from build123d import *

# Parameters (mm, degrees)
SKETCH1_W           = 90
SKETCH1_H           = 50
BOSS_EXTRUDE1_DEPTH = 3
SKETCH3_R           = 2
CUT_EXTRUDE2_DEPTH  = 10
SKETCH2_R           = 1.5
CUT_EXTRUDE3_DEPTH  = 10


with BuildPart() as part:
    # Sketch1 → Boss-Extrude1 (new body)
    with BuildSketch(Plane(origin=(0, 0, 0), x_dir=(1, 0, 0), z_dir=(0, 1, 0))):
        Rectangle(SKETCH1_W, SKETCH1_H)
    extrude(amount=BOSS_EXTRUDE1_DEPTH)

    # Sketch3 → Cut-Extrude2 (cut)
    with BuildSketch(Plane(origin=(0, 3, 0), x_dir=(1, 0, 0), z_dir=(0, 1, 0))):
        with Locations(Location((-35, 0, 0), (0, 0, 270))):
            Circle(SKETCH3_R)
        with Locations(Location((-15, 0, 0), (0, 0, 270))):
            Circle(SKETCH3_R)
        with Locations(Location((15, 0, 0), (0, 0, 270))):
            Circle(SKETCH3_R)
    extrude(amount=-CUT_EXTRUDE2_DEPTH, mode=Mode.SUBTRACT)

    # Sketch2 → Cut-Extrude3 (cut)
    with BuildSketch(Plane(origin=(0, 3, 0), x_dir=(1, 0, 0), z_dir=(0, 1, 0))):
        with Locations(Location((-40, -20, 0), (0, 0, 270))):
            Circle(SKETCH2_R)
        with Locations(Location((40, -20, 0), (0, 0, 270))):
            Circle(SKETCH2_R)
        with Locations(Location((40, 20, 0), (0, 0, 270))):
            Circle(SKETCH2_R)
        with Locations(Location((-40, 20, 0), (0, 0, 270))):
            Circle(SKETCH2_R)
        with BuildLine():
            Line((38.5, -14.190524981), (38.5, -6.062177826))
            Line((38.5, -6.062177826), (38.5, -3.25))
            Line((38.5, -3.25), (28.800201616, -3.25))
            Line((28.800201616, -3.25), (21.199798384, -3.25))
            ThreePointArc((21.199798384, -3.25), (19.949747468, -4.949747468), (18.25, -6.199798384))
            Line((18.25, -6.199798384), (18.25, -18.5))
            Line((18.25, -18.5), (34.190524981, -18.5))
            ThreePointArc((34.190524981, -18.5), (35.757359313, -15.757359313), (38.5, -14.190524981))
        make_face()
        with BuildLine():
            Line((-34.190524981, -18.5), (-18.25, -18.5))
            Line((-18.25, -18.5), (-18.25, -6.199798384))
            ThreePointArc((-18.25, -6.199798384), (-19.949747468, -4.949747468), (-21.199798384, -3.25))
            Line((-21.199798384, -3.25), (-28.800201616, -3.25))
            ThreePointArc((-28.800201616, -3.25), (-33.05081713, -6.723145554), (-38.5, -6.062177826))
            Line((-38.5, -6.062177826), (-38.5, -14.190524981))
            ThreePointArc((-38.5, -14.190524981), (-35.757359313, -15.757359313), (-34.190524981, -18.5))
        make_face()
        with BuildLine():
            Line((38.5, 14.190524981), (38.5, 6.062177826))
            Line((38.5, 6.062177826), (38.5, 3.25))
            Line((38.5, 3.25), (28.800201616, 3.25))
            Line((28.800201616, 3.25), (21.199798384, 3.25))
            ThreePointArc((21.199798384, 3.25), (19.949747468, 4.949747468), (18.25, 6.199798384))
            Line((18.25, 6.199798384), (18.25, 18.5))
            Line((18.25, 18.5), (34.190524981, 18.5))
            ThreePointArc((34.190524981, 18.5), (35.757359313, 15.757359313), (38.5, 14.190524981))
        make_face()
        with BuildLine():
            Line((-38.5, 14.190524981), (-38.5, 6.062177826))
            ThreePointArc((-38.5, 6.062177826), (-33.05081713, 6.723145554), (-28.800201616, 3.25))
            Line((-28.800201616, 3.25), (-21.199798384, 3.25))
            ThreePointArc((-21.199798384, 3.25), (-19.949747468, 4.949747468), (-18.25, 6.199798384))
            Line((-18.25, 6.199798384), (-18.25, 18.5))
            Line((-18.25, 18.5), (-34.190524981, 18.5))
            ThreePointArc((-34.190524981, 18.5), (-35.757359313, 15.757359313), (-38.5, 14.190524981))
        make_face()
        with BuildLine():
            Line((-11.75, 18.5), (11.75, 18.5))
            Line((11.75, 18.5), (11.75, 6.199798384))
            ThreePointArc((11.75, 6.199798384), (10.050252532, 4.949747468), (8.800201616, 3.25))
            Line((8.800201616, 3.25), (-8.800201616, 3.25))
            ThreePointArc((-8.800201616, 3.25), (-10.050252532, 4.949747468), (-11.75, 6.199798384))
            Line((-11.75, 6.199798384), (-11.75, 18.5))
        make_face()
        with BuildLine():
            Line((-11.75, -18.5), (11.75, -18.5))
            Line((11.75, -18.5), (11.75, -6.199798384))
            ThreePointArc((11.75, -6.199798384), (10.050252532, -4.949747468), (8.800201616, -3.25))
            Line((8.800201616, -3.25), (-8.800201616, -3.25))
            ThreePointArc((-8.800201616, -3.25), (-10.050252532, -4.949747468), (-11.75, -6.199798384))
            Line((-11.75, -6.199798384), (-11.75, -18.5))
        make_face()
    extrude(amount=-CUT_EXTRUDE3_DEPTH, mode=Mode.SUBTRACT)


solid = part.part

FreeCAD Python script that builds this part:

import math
import FreeCAD as App
import Part
import Sketcher
Q = App.Units.Quantity


def add_polygon(sketch, points):
    """Adds a closed chain of lines whose ends are joined by coincident constraints."""
    first, n = sketch.GeometryCount, len(points)
    for a, b in zip(points, points[1:] + points[:1]):
        sketch.addGeometry(Part.LineSegment(App.Vector(*a, 0), App.Vector(*b, 0)), False)
    for i in range(n):
        sketch.addConstraint(Sketcher.Constraint("Coincident", first + i, 2, first + (i + 1) % n, 1))

doc = App.newDocument("Part")
params = doc.addObject("Spreadsheet::Sheet", "Params")
for row, (alias, value) in enumerate([
    ("sketch1_width", "90 mm"),
    ("sketch1_height", "50 mm"),
    ("pad1_length", "3 mm"),
    ("sketch2_diameter", "4 mm"),
    ("pocket1_length", "10 mm"),
    ("sketch3_diameter", "3 mm"),
    ("sketch3_radius", "7 mm"),
    ("sketch3_radius2", "6 mm"),
    ("sketch3_width", "23.5 mm"),
    ("pocket2_length", "10 mm"),
], start=1):
    params.set(f"A{row}", alias)
    params.set(f"B{row}", "=" + value)
    params.setAlias(f"B{row}", alias)

body = doc.addObject("PartDesign::Body", "Body")

sketch1 = body.newObject("Sketcher::SketchObject", "Sketch")
sketch1.AttachmentSupport = (doc.getObject("XZ_Plane"), [""])
sketch1.MapMode = "FlatFace"
add_polygon(sketch1, [(-45, -25), (-45, 25), (45, 25), (45, -25)])
sketch1.addConstraint([
    Sketcher.Constraint("Vertical", 0),
    Sketcher.Constraint("Horizontal", 1),
    Sketcher.Constraint("Vertical", 2),
    Sketcher.Constraint("Horizontal", 3),
    Sketcher.Constraint("Symmetric", 0, 2, 2, 2, -1, 1),
    Sketcher.Constraint("DistanceX", 1, 1, 1, 2, Q("90 mm")),
    Sketcher.Constraint("DistanceY", 0, 1, 0, 2, Q("50 mm")),
])
sketch1.setExpression("Constraints[9]", "Params.sketch1_width")
sketch1.setExpression("Constraints[10]", "Params.sketch1_height")
pad1 = body.newObject("PartDesign::Pad", "Pad")
pad1.Profile = sketch1
pad1.setExpression("Length", "Params.pad1_length")
pad1.Reversed = True

sketch2 = body.newObject("Sketcher::SketchObject", "Sketch001")
sketch2.AttachmentSupport = (doc.getObject("XZ_Plane"), [""])
sketch2.MapMode = "FlatFace"
sketch2.AttachmentOffset = App.Placement(App.Vector(0, 0, -3), App.Rotation())
sketch2.addGeometry([
    Part.Circle(App.Vector(-35, 0, 0), App.Vector(0, 0, 1), 2),
    Part.Circle(App.Vector(-15, 0, 0), App.Vector(0, 0, 1), 2),
    Part.Circle(App.Vector(15, 0, 0), App.Vector(0, 0, 1), 2),
], False)
sketch2.addConstraint([
    Sketcher.Constraint("Equal", 0, 1),
    Sketcher.Constraint("Equal", 1, 2),
    Sketcher.Constraint("Symmetric", 1, 3, 2, 3, -1, 1),
    Sketcher.Constraint("PointOnObject", 0, 3, -1),
    Sketcher.Constraint("PointOnObject", 1, 3, -1),
    Sketcher.Constraint("Diameter", 0, Q("4 mm")),
    Sketcher.Constraint("DistanceX", 0, 3, -1, 1, Q("35 mm")),
    Sketcher.Constraint("DistanceX", 1, 3, -1, 1, Q("15 mm")),
])
sketch2.setExpression("Constraints[5]", "Params.sketch2_diameter")
pocket1 = body.newObject("PartDesign::Pocket", "Pocket")
pocket1.Profile = sketch2
pocket1.setExpression("Length", "Params.pocket1_length")
pocket1.Reversed = True

sketch3 = body.newObject("Sketcher::SketchObject", "Sketch002")
sketch3.AttachmentSupport = (doc.getObject("XZ_Plane"), [""])
sketch3.MapMode = "FlatFace"
sketch3.AttachmentOffset = App.Placement(App.Vector(0, 0, -3), App.Rotation())
sketch3.addGeometry([
    Part.Circle(App.Vector(-40, 20, 0), App.Vector(0, 0, 1), 1.5),
    Part.Circle(App.Vector(40, 20, 0), App.Vector(0, 0, 1), 1.5),
    Part.Circle(App.Vector(40, -20, 0), App.Vector(0, 0, 1), 1.5),
    Part.Circle(App.Vector(-40, -20, 0), App.Vector(0, 0, 1), 1.5),
    Part.LineSegment(App.Vector(38.5, 14.190525, 0), App.Vector(38.5, 3.25, 0)),
    Part.LineSegment(App.Vector(38.5, 3.25, 0), App.Vector(21.199798, 3.25, 0)),
    Part.ArcOfCircle(Part.Circle(App.Vector(15, 0, 0), App.Vector(0, 0, 1), 7), math.radians(27.664005), math.radians(62.335995)),
    Part.LineSegment(App.Vector(18.25, 6.199798, 0), App.Vector(18.25, 18.5, 0)),
    Part.LineSegment(App.Vector(18.25, 18.5, 0), App.Vector(34.190525, 18.5, 0)),
    Part.ArcOfCircle(Part.Circle(App.Vector(40, 20, 0), App.Vector(0, 0, 1), 6), math.radians(-165.522488), math.radians(-104.477512)),
    Part.LineSegment(App.Vector(-34.190525, 18.5, 0), App.Vector(-18.25, 18.5, 0)),
    Part.LineSegment(App.Vector(-18.25, 18.5, 0), App.Vector(-18.25, 6.199798, 0)),
    Part.ArcOfCircle(Part.Circle(App.Vector(-15, 0, 0), App.Vector(0, 0, 1), 7), math.radians(117.664005), math.radians(152.335995)),
    Part.LineSegment(App.Vector(-21.199798, 3.25, 0), App.Vector(-28.800202, 3.25, 0)),
    Part.ArcOfCircle(Part.Circle(App.Vector(-35, 0, 0), App.Vector(0, 0, 1), 7), math.radians(27.664004), math.radians(120)),
    Part.LineSegment(App.Vector(-38.5, 6.062178, 0), App.Vector(-38.5, 14.190525, 0)),
    Part.ArcOfCircle(Part.Circle(App.Vector(-40, 20, 0), App.Vector(0, 0, 1), 6), math.radians(-75.522488), math.radians(-14.477512)),
    Part.LineSegment(App.Vector(38.5, -3.25, 0), App.Vector(38.5, -14.190525, 0)),
    Part.ArcOfCircle(Part.Circle(App.Vector(40, -20, 0), App.Vector(0, 0, 1), 6), math.radians(104.477512), math.radians(165.522488)),
    Part.LineSegment(App.Vector(34.190525, -18.5, 0), App.Vector(18.25, -18.5, 0)),
    Part.LineSegment(App.Vector(18.25, -18.5, 0), App.Vector(18.25, -6.199798, 0)),
    Part.ArcOfCircle(Part.Circle(App.Vector(15, 0, 0), App.Vector(0, 0, 1), 7), math.radians(-62.335995), math.radians(-27.664005)),
    Part.LineSegment(App.Vector(21.199798, -3.25, 0), App.Vector(38.5, -3.25, 0)),
    Part.LineSegment(App.Vector(-38.5, -14.190525, 0), App.Vector(-38.5, -6.062178, 0)),
    Part.ArcOfCircle(Part.Circle(App.Vector(-35, 0, 0), App.Vector(0, 0, 1), 7), math.radians(-120), math.radians(-27.664004)),
    Part.LineSegment(App.Vector(-28.800202, -3.25, 0), App.Vector(-21.199798, -3.25, 0)),
    Part.ArcOfCircle(Part.Circle(App.Vector(-15, 0, 0), App.Vector(0, 0, 1), 7), math.radians(-152.335995), math.radians(-117.664005)),
    Part.LineSegment(App.Vector(-18.25, -6.199798, 0), App.Vector(-18.25, -18.5, 0)),
    Part.LineSegment(App.Vector(-18.25, -18.5, 0), App.Vector(-34.190525, -18.5, 0)),
    Part.ArcOfCircle(Part.Circle(App.Vector(-40, -20, 0), App.Vector(0, 0, 1), 6), math.radians(14.477512), math.radians(75.522488)),
    Part.LineSegment(App.Vector(11.75, -18.5, 0), App.Vector(-11.75, -18.5, 0)),
    Part.LineSegment(App.Vector(-11.75, -18.5, 0), App.Vector(-11.75, -6.199798, 0)),
    Part.ArcOfCircle(Part.Circle(App.Vector(-15, 0, 0), App.Vector(0, 0, 1), 7), math.radians(-62.335995), math.radians(-27.664005)),
    Part.LineSegment(App.Vector(-8.800202, -3.25, 0), App.Vector(8.800202, -3.25, 0)),
    Part.ArcOfCircle(Part.Circle(App.Vector(15, 0, 0), App.Vector(0, 0, 1), 7), math.radians(-152.335995), math.radians(-117.664005)),
    Part.LineSegment(App.Vector(11.75, -6.199798, 0), App.Vector(11.75, -18.5, 0)),
    Part.LineSegment(App.Vector(-11.75, 18.5, 0), App.Vector(11.75, 18.5, 0)),
    Part.LineSegment(App.Vector(11.75, 18.5, 0), App.Vector(11.75, 6.199798, 0)),
    Part.ArcOfCircle(Part.Circle(App.Vector(15, 0, 0), App.Vector(0, 0, 1), 7), math.radians(117.664005), math.radians(152.335995)),
    Part.LineSegment(App.Vector(8.800202, 3.25, 0), App.Vector(-8.800202, 3.25, 0)),
    Part.ArcOfCircle(Part.Circle(App.Vector(-15, 0, 0), App.Vector(0, 0, 1), 7), math.radians(27.664005), math.radians(62.335995)),
    Part.LineSegment(App.Vector(-11.75, 6.199798, 0), App.Vector(-11.75, 18.5, 0)),
], False)
sketch3.addConstraint([
    Sketcher.Constraint("Coincident", 4, 2, 5, 1),
    Sketcher.Constraint("Coincident", 5, 2, 6, 1),
    Sketcher.Constraint("Coincident", 6, 2, 7, 1),
    Sketcher.Constraint("Coincident", 7, 2, 8, 1),
    Sketcher.Constraint("Coincident", 8, 2, 9, 1),
    Sketcher.Constraint("Coincident", 9, 2, 4, 1),
    Sketcher.Constraint("Coincident", 10, 2, 11, 1),
    Sketcher.Constraint("Coincident", 11, 2, 12, 1),
    Sketcher.Constraint("Coincident", 12, 2, 13, 1),
    Sketcher.Constraint("Coincident", 13, 2, 14, 1),
    Sketcher.Constraint("Coincident", 14, 2, 15, 1),
    Sketcher.Constraint("Coincident", 15, 2, 16, 1),
    Sketcher.Constraint("Coincident", 16, 2, 10, 1),
    Sketcher.Constraint("Coincident", 17, 2, 18, 1),
    Sketcher.Constraint("Coincident", 18, 2, 19, 1),
    Sketcher.Constraint("Coincident", 19, 2, 20, 1),
    Sketcher.Constraint("Coincident", 20, 2, 21, 1),
    Sketcher.Constraint("Coincident", 21, 2, 22, 1),
    Sketcher.Constraint("Coincident", 22, 2, 17, 1),
    Sketcher.Constraint("Coincident", 23, 2, 24, 1),
    Sketcher.Constraint("Coincident", 24, 2, 25, 1),
    Sketcher.Constraint("Coincident", 25, 2, 26, 1),
    Sketcher.Constraint("Coincident", 26, 2, 27, 1),
    Sketcher.Constraint("Coincident", 27, 2, 28, 1),
    Sketcher.Constraint("Coincident", 28, 2, 29, 1),
    Sketcher.Constraint("Coincident", 29, 2, 23, 1),
    Sketcher.Constraint("Coincident", 30, 2, 31, 1),
    Sketcher.Constraint("Coincident", 31, 2, 32, 1),
    Sketcher.Constraint("Coincident", 32, 2, 33, 1),
    Sketcher.Constraint("Coincident", 33, 2, 34, 1),
    Sketcher.Constraint("Coincident", 34, 2, 35, 1),
    Sketcher.Constraint("Coincident", 35, 2, 30, 1),
    Sketcher.Constraint("Coincident", 36, 2, 37, 1),
    Sketcher.Constraint("Coincident", 37, 2, 38, 1),
    Sketcher.Constraint("Coincident", 38, 2, 39, 1),
    Sketcher.Constraint("Coincident", 39, 2, 40, 1),
    Sketcher.Constraint("Coincident", 40, 2, 41, 1),
    Sketcher.Constraint("Coincident", 41, 2, 36, 1),
    Sketcher.Constraint("Vertical", 4),
    Sketcher.Constraint("Horizontal", 5),
    Sketcher.Constraint("Vertical", 7),
    Sketcher.Constraint("Horizontal", 8),
    Sketcher.Constraint("Horizontal", 10),
    Sketcher.Constraint("Vertical", 11),
    Sketcher.Constraint("Horizontal", 13),
    Sketcher.Constraint("Vertical", 15),
    Sketcher.Constraint("Vertical", 17),
    Sketcher.Constraint("Horizontal", 19),
    Sketcher.Constraint("Vertical", 20),
    Sketcher.Constraint("Horizontal", 22),
    Sketcher.Constraint("Vertical", 23),
    Sketcher.Constraint("Horizontal", 25),
    Sketcher.Constraint("Vertical", 27),
    Sketcher.Constraint("Horizontal", 28),
    Sketcher.Constraint("Horizontal", 30),
    Sketcher.Constraint("Vertical", 31),
    Sketcher.Constraint("Horizontal", 33),
    Sketcher.Constraint("Vertical", 35),
    Sketcher.Constraint("Horizontal", 36),
    Sketcher.Constraint("Vertical", 37),
    Sketcher.Constraint("Horizontal", 39),
    Sketcher.Constraint("Vertical", 41),
    Sketcher.Constraint("Coincident", 9, 3, 1, 3),
    Sketcher.Constraint("Coincident", 16, 3, 0, 3),
    Sketcher.Constraint("Coincident", 18, 3, 2, 3),
    Sketcher.Constraint("Coincident", 21, 3, 6, 3),
    Sketcher.Constraint("Coincident", 24, 3, 14, 3),
    Sketcher.Constraint("Coincident", 26, 3, 12, 3),
    Sketcher.Constraint("Coincident", 29, 3, 3, 3),
    Sketcher.Constraint("Coincident", 32, 3, 12, 3),
    Sketcher.Constraint("Coincident", 34, 3, 6, 3),
    Sketcher.Constraint("Coincident", 38, 3, 6, 3),
    Sketcher.Constraint("Coincident", 40, 3, 12, 3),
    Sketcher.Constraint("Equal", 0, 1),
    Sketcher.Constraint("Equal", 1, 2),
    Sketcher.Constraint("Equal", 2, 3),
    Sketcher.Constraint("Equal", 6, 12),
    Sketcher.Constraint("Equal", 12, 14),
    Sketcher.Constraint("Equal", 9, 16),
    Sketcher.Constraint("Equal", 16, 18),
    Sketcher.Constraint("Equal", 14, 21),
    Sketcher.Constraint("Equal", 21, 24),
    Sketcher.Constraint("Equal", 24, 26),
    Sketcher.Constraint("Equal", 18, 29),
    Sketcher.Constraint("Equal", 26, 32),
    Sketcher.Constraint("Equal", 32, 34),
    Sketcher.Constraint("Equal", 34, 38),
    Sketcher.Constraint("Equal", 38, 40),
    Sketcher.Constraint("Symmetric", 0, 3, 2, 3, -1, 1),
    Sketcher.Constraint("Symmetric", 1, 3, 3, 3, -1, 1),
    Sketcher.Constraint("Symmetric", 6, 3, 12, 3, -1, 1),
    Sketcher.Constraint("Symmetric", 10, 2, 19, 2, -1, 1),
    Sketcher.Constraint("Symmetric", 7, 2, 27, 2, -1, 1),
    Sketcher.Constraint("Symmetric", 30, 2, 36, 2, -1, 1),
    Sketcher.Constraint("Symmetric", 0, 3, 1, 3, -2),
    Sketcher.Constraint("Symmetric", 7, 2, 10, 2, -2),
    Sketcher.Constraint("Symmetric", 5, 2, 12, 2, -2),
    Sketcher.Constraint("Symmetric", 4, 2, 22, 2, -1),
    Sketcher.Constraint("Symmetric", 14, 2, 23, 2, -1),
    Sketcher.Constraint("Horizontal", 9, 2, 15, 2),
    Sketcher.Constraint("Horizontal", 22, 2, 24, 2),
    Sketcher.Constraint("Horizontal", 28, 2, 30, 2),
    Sketcher.Constraint("Horizontal", 26, 2, 31, 2),
    Sketcher.Constraint("Horizontal", 25, 2, 32, 2),
    Sketcher.Constraint("Horizontal", 31, 2, 34, 2),
    Sketcher.Constraint("Horizontal", 13, 2, 38, 2),
    Sketcher.Constraint("Horizontal", 37, 2, 40, 2),
    Sketcher.Constraint("Diameter", 0, Q("3 mm")),
    Sketcher.Constraint("Radius", 6, Q("7 mm")),
    Sketcher.Constraint("Radius", 9, Q("6 mm")),
    Sketcher.Constraint("DistanceX", 30, 2, 30, 1, Q("23.5 mm")),
    Sketcher.Constraint("DistanceX", 0, 3, -1, 1, Q("40 mm")),
    Sketcher.Constraint("DistanceY", -1, 1, 0, 3, Q("20 mm")),
    Sketcher.Constraint("DistanceX", -1, 1, 6, 3, Q("15 mm")),
    Sketcher.Constraint("DistanceX", 14, 3, -1, 1, Q("35 mm")),
    Sketcher.Constraint("DistanceX", -1, 1, 4, 2, Q("38.5 mm")),
    Sketcher.Constraint("DistanceY", -1, 1, 7, 2, Q("18.5 mm")),
    Sketcher.Constraint("DistanceY", 21, 2, 5, 2, Q("6.5 mm")),
])
sketch3.setExpression("Constraints[107]", "Params.sketch3_diameter")
sketch3.setExpression("Constraints[108]", "Params.sketch3_radius")
sketch3.setExpression("Constraints[109]", "Params.sketch3_radius2")
sketch3.setExpression("Constraints[110]", "Params.sketch3_width")
pocket2 = body.newObject("PartDesign::Pocket", "Pocket001")
pocket2.Profile = sketch3
pocket2.setExpression("Length", "Params.pocket2_length")
pocket2.Reversed = True

doc.recompute()
